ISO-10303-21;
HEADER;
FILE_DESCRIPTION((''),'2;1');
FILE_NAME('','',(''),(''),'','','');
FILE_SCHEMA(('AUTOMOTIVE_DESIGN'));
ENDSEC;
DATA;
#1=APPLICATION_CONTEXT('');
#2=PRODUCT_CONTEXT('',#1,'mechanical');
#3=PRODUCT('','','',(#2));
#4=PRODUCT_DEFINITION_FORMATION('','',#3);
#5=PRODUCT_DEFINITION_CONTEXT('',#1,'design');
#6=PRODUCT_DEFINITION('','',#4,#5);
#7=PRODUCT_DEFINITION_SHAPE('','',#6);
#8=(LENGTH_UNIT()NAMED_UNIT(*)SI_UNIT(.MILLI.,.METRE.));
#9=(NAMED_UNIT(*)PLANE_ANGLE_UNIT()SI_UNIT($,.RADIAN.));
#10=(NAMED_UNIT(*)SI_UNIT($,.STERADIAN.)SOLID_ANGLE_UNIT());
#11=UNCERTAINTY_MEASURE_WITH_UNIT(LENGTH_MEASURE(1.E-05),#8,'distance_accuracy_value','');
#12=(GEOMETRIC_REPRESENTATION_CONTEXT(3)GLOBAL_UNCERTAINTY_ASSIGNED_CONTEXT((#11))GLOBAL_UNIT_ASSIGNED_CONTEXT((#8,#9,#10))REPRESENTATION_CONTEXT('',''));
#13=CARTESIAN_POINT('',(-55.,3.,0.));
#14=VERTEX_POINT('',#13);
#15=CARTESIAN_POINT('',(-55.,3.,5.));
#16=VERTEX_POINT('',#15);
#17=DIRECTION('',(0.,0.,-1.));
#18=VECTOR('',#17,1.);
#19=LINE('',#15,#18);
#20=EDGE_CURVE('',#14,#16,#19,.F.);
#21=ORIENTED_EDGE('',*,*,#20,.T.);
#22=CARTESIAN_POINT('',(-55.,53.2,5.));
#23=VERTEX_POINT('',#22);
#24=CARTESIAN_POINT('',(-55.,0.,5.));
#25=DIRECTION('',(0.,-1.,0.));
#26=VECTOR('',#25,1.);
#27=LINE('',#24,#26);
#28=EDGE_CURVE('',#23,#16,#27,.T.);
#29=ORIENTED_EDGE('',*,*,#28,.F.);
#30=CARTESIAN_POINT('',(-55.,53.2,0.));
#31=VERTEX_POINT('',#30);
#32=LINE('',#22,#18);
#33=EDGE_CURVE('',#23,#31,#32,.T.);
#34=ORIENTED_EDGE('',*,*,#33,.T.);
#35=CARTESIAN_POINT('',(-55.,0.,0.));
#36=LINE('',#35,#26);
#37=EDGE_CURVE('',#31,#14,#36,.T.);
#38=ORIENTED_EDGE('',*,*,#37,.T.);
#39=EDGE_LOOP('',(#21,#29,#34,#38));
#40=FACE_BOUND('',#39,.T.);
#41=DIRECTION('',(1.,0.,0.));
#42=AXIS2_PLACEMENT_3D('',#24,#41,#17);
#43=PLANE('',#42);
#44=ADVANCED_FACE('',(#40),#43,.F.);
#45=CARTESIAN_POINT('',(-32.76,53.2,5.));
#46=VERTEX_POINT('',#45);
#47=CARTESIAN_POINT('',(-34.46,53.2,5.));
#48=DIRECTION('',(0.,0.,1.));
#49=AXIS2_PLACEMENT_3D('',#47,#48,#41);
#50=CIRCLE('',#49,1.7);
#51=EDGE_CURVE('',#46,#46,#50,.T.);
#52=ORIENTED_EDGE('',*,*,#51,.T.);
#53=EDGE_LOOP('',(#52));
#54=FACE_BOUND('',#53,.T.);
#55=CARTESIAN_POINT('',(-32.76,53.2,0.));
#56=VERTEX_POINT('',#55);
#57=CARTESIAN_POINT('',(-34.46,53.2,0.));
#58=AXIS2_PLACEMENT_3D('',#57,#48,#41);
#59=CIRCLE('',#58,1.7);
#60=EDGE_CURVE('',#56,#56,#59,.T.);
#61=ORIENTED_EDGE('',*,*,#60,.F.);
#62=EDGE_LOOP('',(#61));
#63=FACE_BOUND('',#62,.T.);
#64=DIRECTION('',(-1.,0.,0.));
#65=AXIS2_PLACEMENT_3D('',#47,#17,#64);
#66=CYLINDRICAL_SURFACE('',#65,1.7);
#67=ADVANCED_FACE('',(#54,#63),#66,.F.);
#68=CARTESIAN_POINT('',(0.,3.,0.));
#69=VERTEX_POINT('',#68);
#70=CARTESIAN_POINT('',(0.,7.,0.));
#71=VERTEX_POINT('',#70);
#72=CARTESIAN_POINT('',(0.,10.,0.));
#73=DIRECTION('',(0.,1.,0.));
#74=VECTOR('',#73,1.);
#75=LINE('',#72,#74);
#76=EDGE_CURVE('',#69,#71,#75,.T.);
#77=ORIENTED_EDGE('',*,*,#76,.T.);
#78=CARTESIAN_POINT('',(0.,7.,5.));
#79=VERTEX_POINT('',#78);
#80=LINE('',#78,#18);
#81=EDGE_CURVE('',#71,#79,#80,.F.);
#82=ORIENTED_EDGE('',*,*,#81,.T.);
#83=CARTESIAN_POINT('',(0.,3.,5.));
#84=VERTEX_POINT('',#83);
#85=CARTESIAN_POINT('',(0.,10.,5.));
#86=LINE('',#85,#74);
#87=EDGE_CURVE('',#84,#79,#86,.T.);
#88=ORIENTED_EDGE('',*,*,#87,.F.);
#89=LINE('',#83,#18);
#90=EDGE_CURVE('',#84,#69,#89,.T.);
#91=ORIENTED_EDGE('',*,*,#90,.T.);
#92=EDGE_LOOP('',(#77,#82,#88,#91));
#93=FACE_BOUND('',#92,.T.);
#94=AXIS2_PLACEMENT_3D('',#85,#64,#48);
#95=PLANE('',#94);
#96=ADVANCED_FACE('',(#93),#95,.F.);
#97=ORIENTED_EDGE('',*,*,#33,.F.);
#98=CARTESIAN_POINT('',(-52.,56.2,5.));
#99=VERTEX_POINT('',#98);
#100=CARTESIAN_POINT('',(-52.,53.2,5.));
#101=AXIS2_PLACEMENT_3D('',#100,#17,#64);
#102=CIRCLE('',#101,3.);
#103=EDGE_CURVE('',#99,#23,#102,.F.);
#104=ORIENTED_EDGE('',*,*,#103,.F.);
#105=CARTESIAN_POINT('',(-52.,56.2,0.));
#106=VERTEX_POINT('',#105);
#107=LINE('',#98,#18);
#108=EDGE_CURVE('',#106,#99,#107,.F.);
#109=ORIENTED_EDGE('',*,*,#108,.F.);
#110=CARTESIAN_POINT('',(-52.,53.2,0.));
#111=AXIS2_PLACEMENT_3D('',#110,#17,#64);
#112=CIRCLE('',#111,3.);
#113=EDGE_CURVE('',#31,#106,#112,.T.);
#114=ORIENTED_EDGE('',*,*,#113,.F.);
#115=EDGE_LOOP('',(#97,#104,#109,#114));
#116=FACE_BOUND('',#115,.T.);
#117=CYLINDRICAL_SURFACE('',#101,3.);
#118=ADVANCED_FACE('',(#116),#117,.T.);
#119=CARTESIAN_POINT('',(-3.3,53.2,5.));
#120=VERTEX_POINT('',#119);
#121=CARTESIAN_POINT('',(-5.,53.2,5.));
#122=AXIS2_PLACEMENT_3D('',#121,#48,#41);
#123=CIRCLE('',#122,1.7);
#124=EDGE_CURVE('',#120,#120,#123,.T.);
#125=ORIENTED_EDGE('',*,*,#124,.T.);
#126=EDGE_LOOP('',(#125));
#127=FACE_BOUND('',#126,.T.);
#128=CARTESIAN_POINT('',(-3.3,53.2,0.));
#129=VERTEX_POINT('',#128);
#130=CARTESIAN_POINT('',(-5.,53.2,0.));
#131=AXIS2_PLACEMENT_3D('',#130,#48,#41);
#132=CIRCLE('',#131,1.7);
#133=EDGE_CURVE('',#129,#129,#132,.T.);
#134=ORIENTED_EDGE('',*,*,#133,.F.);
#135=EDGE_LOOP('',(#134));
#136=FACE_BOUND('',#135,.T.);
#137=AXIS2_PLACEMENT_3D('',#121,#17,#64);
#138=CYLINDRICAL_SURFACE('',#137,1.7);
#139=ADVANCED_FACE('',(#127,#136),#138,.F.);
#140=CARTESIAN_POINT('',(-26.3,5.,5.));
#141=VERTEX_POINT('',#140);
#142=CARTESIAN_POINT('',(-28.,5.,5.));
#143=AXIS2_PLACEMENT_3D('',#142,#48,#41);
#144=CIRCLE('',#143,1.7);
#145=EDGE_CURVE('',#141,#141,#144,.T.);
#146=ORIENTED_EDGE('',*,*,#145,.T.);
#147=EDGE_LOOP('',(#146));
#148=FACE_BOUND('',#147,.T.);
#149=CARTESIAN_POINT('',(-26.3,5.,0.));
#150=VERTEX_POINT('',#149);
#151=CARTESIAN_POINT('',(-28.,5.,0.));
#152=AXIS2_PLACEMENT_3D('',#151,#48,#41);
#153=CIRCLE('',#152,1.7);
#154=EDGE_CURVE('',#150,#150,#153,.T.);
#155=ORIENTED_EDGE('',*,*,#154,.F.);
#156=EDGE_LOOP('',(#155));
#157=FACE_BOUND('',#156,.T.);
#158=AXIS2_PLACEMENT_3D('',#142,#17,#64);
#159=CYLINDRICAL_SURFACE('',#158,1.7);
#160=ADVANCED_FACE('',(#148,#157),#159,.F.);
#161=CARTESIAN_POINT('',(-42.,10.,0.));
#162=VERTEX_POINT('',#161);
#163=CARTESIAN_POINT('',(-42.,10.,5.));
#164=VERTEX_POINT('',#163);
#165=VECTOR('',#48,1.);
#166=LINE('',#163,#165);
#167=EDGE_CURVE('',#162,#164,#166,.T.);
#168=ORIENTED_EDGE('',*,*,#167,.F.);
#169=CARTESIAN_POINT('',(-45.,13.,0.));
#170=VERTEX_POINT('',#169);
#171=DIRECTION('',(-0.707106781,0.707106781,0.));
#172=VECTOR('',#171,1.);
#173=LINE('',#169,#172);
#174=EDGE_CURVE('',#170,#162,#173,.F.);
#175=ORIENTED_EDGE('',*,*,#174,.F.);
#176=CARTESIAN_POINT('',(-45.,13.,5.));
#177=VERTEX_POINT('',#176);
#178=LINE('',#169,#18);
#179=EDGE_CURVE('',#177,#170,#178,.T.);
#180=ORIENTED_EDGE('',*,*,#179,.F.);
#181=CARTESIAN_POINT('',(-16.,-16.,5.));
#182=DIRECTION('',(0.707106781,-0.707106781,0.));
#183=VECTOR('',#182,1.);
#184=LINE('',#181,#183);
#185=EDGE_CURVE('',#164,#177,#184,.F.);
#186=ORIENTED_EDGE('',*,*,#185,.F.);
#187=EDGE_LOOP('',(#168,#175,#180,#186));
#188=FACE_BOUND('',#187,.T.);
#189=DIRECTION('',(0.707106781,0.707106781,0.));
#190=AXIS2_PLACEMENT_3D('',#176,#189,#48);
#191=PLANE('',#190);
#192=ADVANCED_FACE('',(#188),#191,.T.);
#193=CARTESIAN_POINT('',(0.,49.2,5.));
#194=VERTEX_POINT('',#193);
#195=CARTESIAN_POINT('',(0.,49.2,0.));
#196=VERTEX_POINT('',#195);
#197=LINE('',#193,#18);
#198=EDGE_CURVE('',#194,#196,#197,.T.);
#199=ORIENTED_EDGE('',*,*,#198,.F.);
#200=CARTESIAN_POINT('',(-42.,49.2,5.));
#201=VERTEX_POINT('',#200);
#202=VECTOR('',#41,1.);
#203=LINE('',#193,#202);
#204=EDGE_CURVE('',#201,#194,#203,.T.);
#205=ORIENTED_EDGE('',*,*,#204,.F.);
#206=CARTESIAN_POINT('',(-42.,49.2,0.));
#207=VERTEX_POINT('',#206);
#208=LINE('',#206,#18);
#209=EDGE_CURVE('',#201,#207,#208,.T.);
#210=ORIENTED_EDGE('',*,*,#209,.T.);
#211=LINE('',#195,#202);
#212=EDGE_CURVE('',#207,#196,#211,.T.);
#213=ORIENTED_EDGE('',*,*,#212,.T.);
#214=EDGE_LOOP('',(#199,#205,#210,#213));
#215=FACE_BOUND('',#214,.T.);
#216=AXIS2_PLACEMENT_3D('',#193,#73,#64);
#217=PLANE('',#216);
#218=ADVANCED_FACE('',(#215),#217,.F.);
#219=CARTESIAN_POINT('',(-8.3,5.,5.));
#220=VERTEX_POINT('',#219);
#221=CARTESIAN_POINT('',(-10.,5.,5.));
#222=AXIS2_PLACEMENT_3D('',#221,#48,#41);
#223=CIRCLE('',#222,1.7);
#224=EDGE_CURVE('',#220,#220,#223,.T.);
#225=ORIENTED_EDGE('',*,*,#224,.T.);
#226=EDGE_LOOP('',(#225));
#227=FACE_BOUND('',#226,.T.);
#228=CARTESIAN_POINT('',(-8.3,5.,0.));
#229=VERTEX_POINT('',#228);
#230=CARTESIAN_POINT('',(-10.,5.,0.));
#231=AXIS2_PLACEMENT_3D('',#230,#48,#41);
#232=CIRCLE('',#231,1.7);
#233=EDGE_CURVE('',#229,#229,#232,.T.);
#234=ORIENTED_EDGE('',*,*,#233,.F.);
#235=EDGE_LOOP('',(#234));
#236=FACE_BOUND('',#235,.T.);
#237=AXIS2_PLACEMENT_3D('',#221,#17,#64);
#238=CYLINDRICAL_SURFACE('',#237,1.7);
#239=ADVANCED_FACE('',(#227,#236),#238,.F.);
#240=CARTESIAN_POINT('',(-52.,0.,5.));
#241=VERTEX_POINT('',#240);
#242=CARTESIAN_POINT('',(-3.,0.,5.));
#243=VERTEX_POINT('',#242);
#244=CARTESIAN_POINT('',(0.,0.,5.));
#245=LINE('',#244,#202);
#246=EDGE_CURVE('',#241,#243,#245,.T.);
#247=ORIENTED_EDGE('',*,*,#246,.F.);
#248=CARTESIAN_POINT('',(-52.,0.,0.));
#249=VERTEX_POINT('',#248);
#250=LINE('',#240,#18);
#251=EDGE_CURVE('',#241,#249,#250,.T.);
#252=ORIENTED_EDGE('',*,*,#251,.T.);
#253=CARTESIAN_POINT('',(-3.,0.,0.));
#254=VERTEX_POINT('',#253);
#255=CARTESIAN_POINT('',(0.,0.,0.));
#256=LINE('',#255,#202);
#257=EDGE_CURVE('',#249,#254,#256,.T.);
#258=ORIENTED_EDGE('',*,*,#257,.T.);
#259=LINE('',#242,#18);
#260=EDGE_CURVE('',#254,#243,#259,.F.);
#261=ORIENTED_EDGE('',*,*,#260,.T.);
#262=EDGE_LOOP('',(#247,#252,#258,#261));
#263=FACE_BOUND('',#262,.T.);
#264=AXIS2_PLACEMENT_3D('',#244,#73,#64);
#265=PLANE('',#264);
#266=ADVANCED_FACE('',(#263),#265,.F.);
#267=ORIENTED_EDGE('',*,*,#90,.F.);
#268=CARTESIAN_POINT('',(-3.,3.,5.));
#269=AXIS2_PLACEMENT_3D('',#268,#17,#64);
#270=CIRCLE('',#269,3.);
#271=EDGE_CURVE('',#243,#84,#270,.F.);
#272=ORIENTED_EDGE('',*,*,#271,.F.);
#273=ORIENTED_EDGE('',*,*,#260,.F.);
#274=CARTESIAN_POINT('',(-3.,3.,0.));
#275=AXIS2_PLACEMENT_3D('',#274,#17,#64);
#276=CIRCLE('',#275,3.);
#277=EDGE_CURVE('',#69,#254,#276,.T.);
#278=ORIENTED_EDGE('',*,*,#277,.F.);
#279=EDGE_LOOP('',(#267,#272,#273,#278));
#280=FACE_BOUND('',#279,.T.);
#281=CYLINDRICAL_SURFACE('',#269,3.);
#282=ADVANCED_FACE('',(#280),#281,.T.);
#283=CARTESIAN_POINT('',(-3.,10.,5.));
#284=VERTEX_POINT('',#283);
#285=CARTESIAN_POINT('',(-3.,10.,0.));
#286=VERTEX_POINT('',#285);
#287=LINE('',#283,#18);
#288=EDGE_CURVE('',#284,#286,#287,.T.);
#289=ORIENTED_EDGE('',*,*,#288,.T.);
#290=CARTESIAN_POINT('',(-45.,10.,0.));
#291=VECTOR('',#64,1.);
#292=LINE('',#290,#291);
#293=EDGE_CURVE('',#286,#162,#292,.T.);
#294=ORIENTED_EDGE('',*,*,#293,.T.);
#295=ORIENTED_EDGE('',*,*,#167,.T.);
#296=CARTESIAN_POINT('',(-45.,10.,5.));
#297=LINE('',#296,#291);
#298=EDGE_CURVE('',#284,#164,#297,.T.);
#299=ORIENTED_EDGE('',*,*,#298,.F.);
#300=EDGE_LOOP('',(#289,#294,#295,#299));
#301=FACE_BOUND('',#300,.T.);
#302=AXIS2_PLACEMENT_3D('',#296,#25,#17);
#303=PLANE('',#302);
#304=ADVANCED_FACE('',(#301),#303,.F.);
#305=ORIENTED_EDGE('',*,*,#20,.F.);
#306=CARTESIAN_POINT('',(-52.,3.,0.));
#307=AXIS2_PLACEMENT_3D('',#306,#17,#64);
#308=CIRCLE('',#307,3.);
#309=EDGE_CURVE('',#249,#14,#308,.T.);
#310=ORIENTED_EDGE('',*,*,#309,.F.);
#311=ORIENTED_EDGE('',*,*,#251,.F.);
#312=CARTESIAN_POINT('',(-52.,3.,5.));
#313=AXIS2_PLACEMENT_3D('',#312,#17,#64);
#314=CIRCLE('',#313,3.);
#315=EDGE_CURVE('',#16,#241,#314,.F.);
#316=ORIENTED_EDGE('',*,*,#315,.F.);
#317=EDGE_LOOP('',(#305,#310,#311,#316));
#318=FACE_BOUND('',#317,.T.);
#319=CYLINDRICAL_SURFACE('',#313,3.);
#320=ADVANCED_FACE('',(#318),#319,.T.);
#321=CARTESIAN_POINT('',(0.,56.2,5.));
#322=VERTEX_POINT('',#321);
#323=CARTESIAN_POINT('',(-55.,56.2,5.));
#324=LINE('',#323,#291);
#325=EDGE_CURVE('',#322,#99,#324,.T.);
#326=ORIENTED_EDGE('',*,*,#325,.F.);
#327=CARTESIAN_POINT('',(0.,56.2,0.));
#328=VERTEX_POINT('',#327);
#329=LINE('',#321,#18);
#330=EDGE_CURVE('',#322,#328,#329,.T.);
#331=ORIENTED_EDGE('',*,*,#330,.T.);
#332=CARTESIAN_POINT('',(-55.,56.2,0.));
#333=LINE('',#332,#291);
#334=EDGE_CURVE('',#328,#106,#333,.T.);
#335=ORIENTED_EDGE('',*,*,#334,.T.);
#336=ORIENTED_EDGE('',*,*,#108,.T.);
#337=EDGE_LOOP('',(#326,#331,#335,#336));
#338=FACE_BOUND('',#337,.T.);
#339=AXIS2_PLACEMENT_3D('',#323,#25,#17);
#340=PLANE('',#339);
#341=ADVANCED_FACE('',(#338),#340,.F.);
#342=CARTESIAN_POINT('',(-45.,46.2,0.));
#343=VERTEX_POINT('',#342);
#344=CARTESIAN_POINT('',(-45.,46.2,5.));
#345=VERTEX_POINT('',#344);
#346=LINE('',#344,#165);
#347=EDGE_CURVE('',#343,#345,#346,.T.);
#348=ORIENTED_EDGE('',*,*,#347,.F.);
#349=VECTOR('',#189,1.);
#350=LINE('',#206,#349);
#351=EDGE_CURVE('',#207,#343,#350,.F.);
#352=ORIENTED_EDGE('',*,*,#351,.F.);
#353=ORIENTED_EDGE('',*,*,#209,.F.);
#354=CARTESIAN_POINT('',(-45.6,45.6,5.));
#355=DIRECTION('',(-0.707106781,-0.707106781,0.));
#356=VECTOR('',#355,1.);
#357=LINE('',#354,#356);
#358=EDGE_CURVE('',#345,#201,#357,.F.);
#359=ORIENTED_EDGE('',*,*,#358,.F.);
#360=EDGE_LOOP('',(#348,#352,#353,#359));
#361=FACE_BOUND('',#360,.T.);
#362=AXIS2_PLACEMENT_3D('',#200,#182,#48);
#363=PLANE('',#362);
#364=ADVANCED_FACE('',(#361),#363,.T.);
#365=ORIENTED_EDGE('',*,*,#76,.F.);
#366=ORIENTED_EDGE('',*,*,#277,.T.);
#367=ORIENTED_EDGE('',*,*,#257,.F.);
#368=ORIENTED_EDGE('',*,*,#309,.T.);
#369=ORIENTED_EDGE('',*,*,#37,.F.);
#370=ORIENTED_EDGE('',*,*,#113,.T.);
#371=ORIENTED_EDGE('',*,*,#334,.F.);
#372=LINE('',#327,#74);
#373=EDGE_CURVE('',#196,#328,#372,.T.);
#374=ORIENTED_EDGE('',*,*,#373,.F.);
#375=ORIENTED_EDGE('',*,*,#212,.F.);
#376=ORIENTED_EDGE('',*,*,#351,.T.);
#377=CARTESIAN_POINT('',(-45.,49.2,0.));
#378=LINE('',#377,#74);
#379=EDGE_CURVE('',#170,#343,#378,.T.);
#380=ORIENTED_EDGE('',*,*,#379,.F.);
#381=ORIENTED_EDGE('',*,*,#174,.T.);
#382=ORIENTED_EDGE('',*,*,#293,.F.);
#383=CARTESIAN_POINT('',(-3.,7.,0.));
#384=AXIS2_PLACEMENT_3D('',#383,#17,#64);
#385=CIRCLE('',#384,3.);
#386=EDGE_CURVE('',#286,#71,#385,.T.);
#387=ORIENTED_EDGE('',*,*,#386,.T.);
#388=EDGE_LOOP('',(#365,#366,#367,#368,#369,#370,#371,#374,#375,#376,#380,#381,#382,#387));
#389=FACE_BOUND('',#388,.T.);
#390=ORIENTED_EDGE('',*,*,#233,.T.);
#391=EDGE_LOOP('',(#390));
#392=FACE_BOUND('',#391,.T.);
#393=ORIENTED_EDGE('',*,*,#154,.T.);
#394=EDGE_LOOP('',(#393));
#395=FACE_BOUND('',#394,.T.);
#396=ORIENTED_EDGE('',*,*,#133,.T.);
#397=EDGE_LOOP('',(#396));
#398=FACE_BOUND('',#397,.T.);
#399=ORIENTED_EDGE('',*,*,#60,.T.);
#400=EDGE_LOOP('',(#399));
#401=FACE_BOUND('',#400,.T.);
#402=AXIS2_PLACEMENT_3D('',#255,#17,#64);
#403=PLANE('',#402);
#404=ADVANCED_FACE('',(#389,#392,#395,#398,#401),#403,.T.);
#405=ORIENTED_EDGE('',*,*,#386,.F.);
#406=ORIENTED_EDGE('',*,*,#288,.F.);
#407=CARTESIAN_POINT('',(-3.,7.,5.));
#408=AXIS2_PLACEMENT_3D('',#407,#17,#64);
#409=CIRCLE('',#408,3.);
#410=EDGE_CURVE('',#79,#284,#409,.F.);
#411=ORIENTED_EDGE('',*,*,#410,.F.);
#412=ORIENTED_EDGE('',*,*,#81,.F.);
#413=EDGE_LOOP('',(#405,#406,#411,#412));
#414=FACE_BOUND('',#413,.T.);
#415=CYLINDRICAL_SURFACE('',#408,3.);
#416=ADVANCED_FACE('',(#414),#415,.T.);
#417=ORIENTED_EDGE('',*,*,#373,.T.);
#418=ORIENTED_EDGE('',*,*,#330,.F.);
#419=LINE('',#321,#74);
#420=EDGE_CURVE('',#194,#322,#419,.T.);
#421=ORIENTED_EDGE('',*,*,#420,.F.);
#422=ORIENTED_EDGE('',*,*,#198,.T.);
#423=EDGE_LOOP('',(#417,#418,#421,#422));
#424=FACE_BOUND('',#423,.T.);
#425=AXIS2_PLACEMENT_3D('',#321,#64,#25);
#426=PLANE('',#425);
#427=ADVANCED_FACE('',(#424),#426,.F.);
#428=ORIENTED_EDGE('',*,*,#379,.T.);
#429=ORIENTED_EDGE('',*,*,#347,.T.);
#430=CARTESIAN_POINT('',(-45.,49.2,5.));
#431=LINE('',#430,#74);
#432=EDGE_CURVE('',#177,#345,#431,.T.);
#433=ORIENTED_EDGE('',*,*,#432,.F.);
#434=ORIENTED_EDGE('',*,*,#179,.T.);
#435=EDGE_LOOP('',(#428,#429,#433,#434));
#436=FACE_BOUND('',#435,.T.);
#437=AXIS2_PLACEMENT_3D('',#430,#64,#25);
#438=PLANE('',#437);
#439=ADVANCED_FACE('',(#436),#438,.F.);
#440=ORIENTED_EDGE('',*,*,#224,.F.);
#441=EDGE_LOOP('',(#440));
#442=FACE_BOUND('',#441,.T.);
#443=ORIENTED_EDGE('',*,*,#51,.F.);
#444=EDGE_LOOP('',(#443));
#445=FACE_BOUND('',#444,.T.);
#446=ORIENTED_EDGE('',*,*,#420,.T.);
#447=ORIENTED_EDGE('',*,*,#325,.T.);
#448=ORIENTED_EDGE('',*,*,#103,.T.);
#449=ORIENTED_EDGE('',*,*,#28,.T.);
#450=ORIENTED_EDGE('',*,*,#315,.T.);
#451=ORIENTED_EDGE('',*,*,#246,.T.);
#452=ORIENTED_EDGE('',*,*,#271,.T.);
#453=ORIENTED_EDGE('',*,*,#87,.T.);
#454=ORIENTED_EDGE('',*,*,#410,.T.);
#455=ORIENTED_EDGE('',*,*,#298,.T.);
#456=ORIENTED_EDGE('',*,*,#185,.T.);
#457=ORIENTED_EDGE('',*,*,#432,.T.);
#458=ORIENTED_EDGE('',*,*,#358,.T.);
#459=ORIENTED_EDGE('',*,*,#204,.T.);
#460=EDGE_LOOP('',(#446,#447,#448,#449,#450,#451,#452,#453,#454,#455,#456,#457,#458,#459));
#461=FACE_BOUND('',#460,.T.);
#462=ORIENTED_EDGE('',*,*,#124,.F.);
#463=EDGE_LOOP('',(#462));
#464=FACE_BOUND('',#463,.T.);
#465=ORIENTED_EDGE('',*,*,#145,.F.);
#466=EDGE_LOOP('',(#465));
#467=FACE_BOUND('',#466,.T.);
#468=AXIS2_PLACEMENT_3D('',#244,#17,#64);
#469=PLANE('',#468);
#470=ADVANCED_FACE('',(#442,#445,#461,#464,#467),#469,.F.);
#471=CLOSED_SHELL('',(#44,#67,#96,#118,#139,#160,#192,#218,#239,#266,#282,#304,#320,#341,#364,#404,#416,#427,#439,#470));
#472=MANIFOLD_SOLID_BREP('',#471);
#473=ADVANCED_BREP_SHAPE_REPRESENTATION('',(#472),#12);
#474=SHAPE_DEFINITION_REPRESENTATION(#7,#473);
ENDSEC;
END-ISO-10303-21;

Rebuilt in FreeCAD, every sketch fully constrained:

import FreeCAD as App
import Part
import Sketcher

V = App.Vector
Q = App.Units.Quantity


def edges_at(feature, points):
    """Names of the edges that pass closest to the given points."""
    edges = feature.Shape.Edges
    near = lambda p: min(range(len(edges)), key=lambda i: edges[i].distToShape(Part.Vertex(*p))[0])
    return sorted({f"Edge{near(p) + 1}" for p in points})

doc = App.newDocument("Part")
body = doc.addObject("PartDesign::Body", "Body")

# Sketch on XY plane
sketch1 = body.newObject("Sketcher::SketchObject", "Sketch")
sketch1.AttachmentSupport = (doc.getObject("XY_Plane"), [""])
sketch1.MapMode = "FlatFace"
sketch1.addGeometry(Part.LineSegment(V(-55, 0, 0), V(0, 0, 0)), False)
sketch1.addGeometry(Part.LineSegment(V(0, 0, 0), V(0, 10, 0)), False)
sketch1.addGeometry(Part.LineSegment(V(0, 10, 0), V(-45, 10, 0)), False)
sketch1.addGeometry(Part.LineSegment(V(-45, 10, 0), V(-45, 49.2, 0)), False)
sketch1.addGeometry(Part.LineSegment(V(-45, 49.2, 0), V(0, 49.2, 0)), False)
sketch1.addGeometry(Part.LineSegment(V(0, 49.2, 0), V(0, 56.2, 0)), False)
sketch1.addGeometry(Part.LineSegment(V(0, 56.2, 0), V(-55, 56.2, 0)), False)
sketch1.addGeometry(Part.LineSegment(V(-55, 56.2, 0), V(-55, 0, 0)), False)
sketch1.addGeometry(Part.Circle(V(-10, 5, 0), V(0, 0, 1), 1.7), False)
sketch1.addGeometry(Part.Circle(V(-28, 5, 0), V(0, 0, 1), 1.7), False)
sketch1.addGeometry(Part.Circle(V(-5, 53.2, 0), V(0, 0, 1), 1.7), False)
sketch1.addGeometry(Part.Circle(V(-34.5, 53.2, 0), V(0, 0, 1), 1.7), False)
sketch1.addConstraint(Sketcher.Constraint("Coincident", 0, 2, 1, 1))
sketch1.addConstraint(Sketcher.Constraint("Coincident", 1, 2, 2, 1))
sketch1.addConstraint(Sketcher.Constraint("Coincident", 2, 2, 3, 1))
sketch1.addConstraint(Sketcher.Constraint("Coincident", 3, 2, 4, 1))
sketch1.addConstraint(Sketcher.Constraint("Coincident", 4, 2, 5, 1))
sketch1.addConstraint(Sketcher.Constraint("Coincident", 5, 2, 6, 1))
sketch1.addConstraint(Sketcher.Constraint("Coincident", 6, 2, 7, 1))
sketch1.addConstraint(Sketcher.Constraint("Coincident", 7, 2, 0, 1))
sketch1.addConstraint(Sketcher.Constraint("Horizontal", 0))
sketch1.addConstraint(Sketcher.Constraint("Vertical", 1))
sketch1.addConstraint(Sketcher.Constraint("Horizontal", 2))
sketch1.addConstraint(Sketcher.Constraint("Vertical", 3))
sketch1.addConstraint(Sketcher.Constraint("Horizontal", 4))
sketch1.addConstraint(Sketcher.Constraint("Vertical", 5))
sketch1.addConstraint(Sketcher.Constraint("Horizontal", 6))
sketch1.addConstraint(Sketcher.Constraint("Vertical", 7))
sketch1.addConstraint(Sketcher.Constraint("Coincident", 0, 2, -1, 1))
sketch1.addConstraint(Sketcher.Constraint("Equal", 8, 9))
sketch1.addConstraint(Sketcher.Constraint("Equal", 9, 10))
sketch1.addConstraint(Sketcher.Constraint("Equal", 10, 11))
sketch1.addConstraint(Sketcher.Constraint("PointOnObject", 4, 2, -2))
sketch1.addConstraint(Sketcher.Constraint("Horizontal", 8, 3, 9, 3))
sketch1.addConstraint(Sketcher.Constraint("Horizontal", 10, 3, 11, 3))
sketch1.addConstraint(Sketcher.Constraint("Diameter", 8, Q("3.4 mm")))
sketch1.addConstraint(Sketcher.Constraint("DistanceX", 0, 1, 0, 2, Q("55 mm")))
sketch1.addConstraint(Sketcher.Constraint("DistanceX", 2, 2, 2, 1, Q("45 mm")))
sketch1.addConstraint(Sketcher.Constraint("DistanceY", 1, 1, 1, 2, Q("10 mm")))
sketch1.addConstraint(Sketcher.Constraint("DistanceY", 5, 1, 5, 2, Q("7 mm")))
sketch1.addConstraint(Sketcher.Constraint("DistanceY", 3, 1, 3, 2, Q("39.2 mm")))
sketch1.addConstraint(Sketcher.Constraint("DistanceX", 8, 3, -1, 1, Q("10 mm")))
sketch1.addConstraint(Sketcher.Constraint("DistanceY", -1, 1, 8, 3, Q("5 mm")))
sketch1.addConstraint(Sketcher.Constraint("DistanceX", 9, 3, -1, 1, Q("28 mm")))
sketch1.addConstraint(Sketcher.Constraint("DistanceX", 10, 3, -1, 1, Q("5 mm")))
sketch1.addConstraint(Sketcher.Constraint("DistanceY", 3, 2, 11, 3, Q("4 mm")))
sketch1.addConstraint(Sketcher.Constraint("DistanceX", 11, 3, -1, 1, Q("34.46 mm")))
pad1 = body.newObject("PartDesign::Pad", "Pad")
pad1.Profile = sketch1
pad1.Length = 5
doc.recompute()

fillet = body.newObject("PartDesign::Fillet", "Fillet")
fillet.Base = (pad1, edges_at(pad1, [
    (0, 0, 2.5),
    (-55, 0, 2.5),
    (-55, 56.2, 2.5),
    (0, 10, 2.5),
]))
fillet.Radius = 3
doc.recompute()

chamfer = body.newObject("PartDesign::Chamfer", "Chamfer")
chamfer.Base = (fillet, edges_at(fillet, [(-45, 49.2, 2.5), (-45, 10, 2.5)]))
chamfer.Size = 3

doc.recompute()
